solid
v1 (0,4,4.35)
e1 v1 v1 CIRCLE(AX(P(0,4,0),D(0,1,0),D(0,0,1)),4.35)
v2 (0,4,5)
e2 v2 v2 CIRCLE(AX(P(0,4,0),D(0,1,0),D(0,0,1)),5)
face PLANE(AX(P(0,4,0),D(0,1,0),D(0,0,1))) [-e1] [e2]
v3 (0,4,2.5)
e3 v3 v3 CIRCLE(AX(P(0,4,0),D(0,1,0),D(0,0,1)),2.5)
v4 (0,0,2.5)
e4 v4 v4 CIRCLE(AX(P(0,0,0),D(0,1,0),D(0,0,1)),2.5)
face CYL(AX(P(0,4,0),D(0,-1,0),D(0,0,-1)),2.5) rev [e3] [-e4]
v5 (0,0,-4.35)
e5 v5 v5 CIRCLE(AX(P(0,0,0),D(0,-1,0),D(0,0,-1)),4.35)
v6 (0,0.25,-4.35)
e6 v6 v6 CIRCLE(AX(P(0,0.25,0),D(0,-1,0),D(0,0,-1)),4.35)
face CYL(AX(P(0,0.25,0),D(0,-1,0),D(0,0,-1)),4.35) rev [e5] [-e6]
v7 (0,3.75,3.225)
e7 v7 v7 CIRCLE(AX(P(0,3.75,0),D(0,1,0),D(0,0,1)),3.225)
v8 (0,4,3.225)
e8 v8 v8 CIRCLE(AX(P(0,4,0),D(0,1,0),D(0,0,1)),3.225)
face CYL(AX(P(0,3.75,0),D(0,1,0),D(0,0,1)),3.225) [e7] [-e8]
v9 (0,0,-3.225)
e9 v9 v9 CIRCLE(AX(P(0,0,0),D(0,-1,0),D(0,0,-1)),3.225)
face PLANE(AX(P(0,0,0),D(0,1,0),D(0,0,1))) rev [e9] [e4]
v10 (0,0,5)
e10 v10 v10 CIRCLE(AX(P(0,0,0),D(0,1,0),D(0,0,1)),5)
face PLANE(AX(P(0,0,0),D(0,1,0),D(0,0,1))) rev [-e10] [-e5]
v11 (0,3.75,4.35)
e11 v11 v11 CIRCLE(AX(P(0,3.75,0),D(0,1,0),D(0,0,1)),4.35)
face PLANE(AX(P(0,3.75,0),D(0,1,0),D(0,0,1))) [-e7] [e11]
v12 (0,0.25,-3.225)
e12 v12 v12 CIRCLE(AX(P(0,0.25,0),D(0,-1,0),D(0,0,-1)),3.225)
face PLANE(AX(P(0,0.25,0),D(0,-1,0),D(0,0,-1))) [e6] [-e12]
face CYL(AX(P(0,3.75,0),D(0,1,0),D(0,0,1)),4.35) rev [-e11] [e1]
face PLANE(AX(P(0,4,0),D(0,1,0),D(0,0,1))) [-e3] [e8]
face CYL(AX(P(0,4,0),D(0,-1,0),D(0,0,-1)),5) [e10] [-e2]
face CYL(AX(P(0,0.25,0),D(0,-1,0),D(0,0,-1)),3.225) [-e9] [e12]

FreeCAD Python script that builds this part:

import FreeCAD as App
import Part
import Sketcher

V = App.Vector

doc = App.newDocument("Part")
params = doc.addObject("Spreadsheet::Sheet", "Params")
for row, (alias, value) in enumerate([
    ("sketch1_diameter", "10 mm"),
    ("sketch1_diameter2", "5 mm"),
    ("pad1_length", "4 mm"),
    ("sketch2_diameter", "8.7 mm"),
    ("sketch2_diameter2", "6.45 mm"),
    ("pocket1_length", "0.25 mm"),
    ("sketch3_diameter", "8.7 mm"),
    ("sketch3_diameter2", "6.45 mm"),
    ("pocket2_length", "0.25 mm"),
], start=1):
    params.set(f"A{row}", alias)
    params.set(f"B{row}", "=" + value)
    params.setAlias(f"B{row}", alias)

body = doc.addObject("PartDesign::Body", "Body")

sketch1 = body.newObject("Sketcher::SketchObject", "Sketch")
sketch1.AttachmentSupport = (doc.getObject("XZ_Plane"), [""])
sketch1.MapMode = "FlatFace"
sketch1.addGeometry([
    Part.Circle(V(0, 0, 0), V(0, 0, 1), 5),
    Part.Circle(V(0, 0, 0), V(0, 0, 1), 2.5),
], False)
sketch1.addConstraint([
    Sketcher.Constraint("Coincident", 0, 3, -1, 1),
    Sketcher.Constraint("Coincident", 1, 3, -1, 1),
    Sketcher.Constraint("Diameter", 0, 10.0),
    Sketcher.Constraint("Diameter", 1, 5.0),
])
sketch1.setExpression("Constraints[2]", "Params.sketch1_diameter")
sketch1.setExpression("Constraints[3]", "Params.sketch1_diameter2")
pad1 = body.newObject("PartDesign::Pad", "Pad")
pad1.Profile = sketch1
pad1.setExpression("Length", "Params.pad1_length")
pad1.Reversed = True

sketch2 = body.newObject("Sketcher::SketchObject", "Sketch001")
sketch2.AttachmentSupport = (doc.getObject("XZ_Plane"), [""])
sketch2.MapMode = "FlatFace"
sketch2.AttachmentOffset = App.Placement(V(0, 0, -4), App.Rotation())
sketch2.addGeometry([
    Part.Circle(V(0, 0, 0), V(0, 0, 1), 4.35),
    Part.Circle(V(0, 0, 0), V(0, 0, 1), 3.225),
], False)
sketch2.addConstraint([
    Sketcher.Constraint("Coincident", 0, 3, -1, 1),
    Sketcher.Constraint("Coincident", 1, 3, -1, 1),
    Sketcher.Constraint("Diameter", 0, 8.7),
    Sketcher.Constraint("Diameter", 1, 6.45),
])
sketch2.setExpression("Constraints[2]", "Params.sketch2_diameter")
sketch2.setExpression("Constraints[3]", "Params.sketch2_diameter2")
pocket1 = body.newObject("PartDesign::Pocket", "Pocket")
pocket1.Profile = sketch2
pocket1.setExpression("Length", "Params.pocket1_length")
pocket1.Reversed = True

sketch3 = body.newObject("Sketcher::SketchObject", "Sketch002")
sketch3.AttachmentSupport = (doc.getObject("XZ_Plane"), [""])
sketch3.MapMode = "FlatFace"
sketch3.addGeometry([
    Part.Circle(V(0, 0, 0), V(0, 0, 1), 4.35),
    Part.Circle(V(0, 0, 0), V(0, 0, 1), 3.225),
], False)
sketch3.addConstraint([
    Sketcher.Constraint("Coincident", 0, 3, -1, 1),
    Sketcher.Constraint("Coincident", 1, 3, -1, 1),
    Sketcher.Constraint("Diameter", 0, 8.7),
    Sketcher.Constraint("Diameter", 1, 6.45),
])
sketch3.setExpression("Constraints[2]", "Params.sketch3_diameter")
sketch3.setExpression("Constraints[3]", "Params.sketch3_diameter2")
pocket2 = body.newObject("PartDesign::Pocket", "Pocket001")
pocket2.Profile = sketch3
pocket2.setExpression("Length", "Params.pocket2_length")

doc.recompute()
